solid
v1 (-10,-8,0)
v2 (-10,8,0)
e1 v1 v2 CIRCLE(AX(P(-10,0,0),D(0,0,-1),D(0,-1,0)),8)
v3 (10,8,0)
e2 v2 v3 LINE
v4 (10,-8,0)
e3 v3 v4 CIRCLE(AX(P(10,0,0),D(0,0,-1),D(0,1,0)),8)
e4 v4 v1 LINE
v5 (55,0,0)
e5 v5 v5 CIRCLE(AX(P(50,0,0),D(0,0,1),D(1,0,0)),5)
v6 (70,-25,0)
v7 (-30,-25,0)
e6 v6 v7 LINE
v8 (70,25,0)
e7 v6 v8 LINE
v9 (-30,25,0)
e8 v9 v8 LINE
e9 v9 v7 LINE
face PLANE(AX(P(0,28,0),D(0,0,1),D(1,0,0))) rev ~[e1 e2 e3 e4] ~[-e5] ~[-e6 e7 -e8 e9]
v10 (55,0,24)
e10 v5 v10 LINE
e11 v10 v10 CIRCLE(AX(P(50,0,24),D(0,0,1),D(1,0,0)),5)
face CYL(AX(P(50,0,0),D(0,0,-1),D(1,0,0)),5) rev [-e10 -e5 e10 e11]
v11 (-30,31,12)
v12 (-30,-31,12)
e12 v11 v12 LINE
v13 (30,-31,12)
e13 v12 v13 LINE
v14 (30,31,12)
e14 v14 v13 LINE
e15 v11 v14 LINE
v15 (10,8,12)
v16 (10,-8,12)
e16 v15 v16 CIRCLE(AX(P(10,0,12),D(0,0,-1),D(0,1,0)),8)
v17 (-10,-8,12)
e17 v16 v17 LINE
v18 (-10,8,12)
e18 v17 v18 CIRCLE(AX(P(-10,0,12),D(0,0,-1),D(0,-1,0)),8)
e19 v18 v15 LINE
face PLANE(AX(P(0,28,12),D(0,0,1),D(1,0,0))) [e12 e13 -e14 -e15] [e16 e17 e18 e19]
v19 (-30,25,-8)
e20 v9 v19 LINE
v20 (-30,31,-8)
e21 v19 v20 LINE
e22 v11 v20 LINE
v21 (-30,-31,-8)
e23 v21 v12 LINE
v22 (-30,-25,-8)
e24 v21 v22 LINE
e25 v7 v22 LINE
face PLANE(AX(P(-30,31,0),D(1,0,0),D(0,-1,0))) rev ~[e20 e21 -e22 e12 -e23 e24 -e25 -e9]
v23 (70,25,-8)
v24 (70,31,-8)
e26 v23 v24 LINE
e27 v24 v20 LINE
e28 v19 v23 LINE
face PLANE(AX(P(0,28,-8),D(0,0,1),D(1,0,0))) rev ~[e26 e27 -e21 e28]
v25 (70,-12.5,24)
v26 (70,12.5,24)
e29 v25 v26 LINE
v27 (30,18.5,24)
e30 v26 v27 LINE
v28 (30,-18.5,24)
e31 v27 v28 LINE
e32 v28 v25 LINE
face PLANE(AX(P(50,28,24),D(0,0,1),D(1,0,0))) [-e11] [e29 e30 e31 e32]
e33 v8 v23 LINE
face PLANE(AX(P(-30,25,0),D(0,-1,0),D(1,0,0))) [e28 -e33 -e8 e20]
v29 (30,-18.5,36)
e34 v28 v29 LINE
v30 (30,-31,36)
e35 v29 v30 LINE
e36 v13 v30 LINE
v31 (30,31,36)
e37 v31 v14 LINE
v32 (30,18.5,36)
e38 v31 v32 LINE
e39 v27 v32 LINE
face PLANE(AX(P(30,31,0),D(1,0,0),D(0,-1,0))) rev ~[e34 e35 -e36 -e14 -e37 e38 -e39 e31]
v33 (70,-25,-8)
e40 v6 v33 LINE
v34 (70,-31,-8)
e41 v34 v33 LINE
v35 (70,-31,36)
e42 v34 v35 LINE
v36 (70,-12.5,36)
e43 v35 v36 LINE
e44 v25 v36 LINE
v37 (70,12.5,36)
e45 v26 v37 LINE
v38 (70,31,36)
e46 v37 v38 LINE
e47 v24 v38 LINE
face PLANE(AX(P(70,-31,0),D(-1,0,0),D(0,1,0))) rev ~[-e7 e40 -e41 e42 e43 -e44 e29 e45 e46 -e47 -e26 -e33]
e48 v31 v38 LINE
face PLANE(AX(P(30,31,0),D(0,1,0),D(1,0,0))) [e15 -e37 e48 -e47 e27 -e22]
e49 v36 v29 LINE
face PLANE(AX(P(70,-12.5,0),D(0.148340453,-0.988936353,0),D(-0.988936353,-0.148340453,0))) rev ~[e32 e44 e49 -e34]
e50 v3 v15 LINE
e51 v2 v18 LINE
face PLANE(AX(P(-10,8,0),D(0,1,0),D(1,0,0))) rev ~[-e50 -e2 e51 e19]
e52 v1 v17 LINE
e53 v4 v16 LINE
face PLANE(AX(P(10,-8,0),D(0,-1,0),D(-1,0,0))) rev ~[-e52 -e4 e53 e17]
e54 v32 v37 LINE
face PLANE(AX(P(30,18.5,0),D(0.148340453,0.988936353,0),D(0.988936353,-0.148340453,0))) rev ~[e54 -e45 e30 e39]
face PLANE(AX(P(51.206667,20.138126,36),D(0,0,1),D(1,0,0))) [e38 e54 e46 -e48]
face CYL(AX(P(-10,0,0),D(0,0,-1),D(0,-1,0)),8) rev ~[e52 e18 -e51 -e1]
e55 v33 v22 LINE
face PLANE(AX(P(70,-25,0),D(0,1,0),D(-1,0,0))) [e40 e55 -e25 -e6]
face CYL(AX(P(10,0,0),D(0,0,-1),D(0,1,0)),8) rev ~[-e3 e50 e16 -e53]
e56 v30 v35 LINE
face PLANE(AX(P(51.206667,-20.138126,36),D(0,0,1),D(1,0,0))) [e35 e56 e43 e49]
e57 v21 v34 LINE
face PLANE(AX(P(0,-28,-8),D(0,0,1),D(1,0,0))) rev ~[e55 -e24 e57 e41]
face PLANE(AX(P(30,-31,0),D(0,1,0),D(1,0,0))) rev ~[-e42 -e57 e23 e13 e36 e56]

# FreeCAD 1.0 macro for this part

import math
import FreeCAD as App
import Part
import Sketcher

doc = App.newDocument("Part")
body = doc.addObject("PartDesign::Body", "Body")
body.AllowCompound = True

# Sketch on XY plane
sketch1 = body.newObject("Sketcher::SketchObject", "Sketch")
sketch1.AttachmentSupport = (doc.getObject("XY_Plane"), [""])
sketch1.MapMode = "FlatFace"
sketch1.addGeometry([
    Part.LineSegment(App.Vector(-30, -25, 0), App.Vector(-30, -31, 0)),  # 0
    Part.LineSegment(App.Vector(-30, -31, 0), App.Vector(70, -31, 0)),  # 1
    Part.LineSegment(App.Vector(70, -31, 0), App.Vector(70, -25, 0)),  # 2
    Part.LineSegment(App.Vector(70, -25, 0), App.Vector(-30, -25, 0)),  # 3
    Part.LineSegment(App.Vector(-30, 31, 0), App.Vector(-30, 25, 0)),  # 4
    Part.LineSegment(App.Vector(-30, 25, 0), App.Vector(70, 25, 0)),  # 5
    Part.LineSegment(App.Vector(70, 25, 0), App.Vector(70, 31, 0)),  # 6
    Part.LineSegment(App.Vector(70, 31, 0), App.Vector(-30, 31, 0)),  # 7
], False)
sketch1.addConstraint([
    Sketcher.Constraint("Coincident", 0, 2, 1, 1),
    Sketcher.Constraint("Coincident", 1, 2, 2, 1),
    Sketcher.Constraint("Coincident", 2, 2, 3, 1),
    Sketcher.Constraint("Coincident", 3, 2, 0, 1),
    Sketcher.Constraint("Coincident", 4, 2, 5, 1),
    Sketcher.Constraint("Coincident", 5, 2, 6, 1),
    Sketcher.Constraint("Coincident", 6, 2, 7, 1),
    Sketcher.Constraint("Coincident", 7, 2, 4, 1),
    Sketcher.Constraint("Vertical", 0),
    Sketcher.Constraint("Horizontal", 1),
    Sketcher.Constraint("Vertical", 2),
    Sketcher.Constraint("Horizontal", 3),
    Sketcher.Constraint("Vertical", 4),
    Sketcher.Constraint("Horizontal", 5),
    Sketcher.Constraint("Vertical", 6),
    Sketcher.Constraint("Horizontal", 7),
    Sketcher.Constraint("Symmetric", 3, 2, 4, 2, -1),
    Sketcher.Constraint("Symmetric", 1, 2, 6, 2, -1),
    Sketcher.Constraint("DistanceX", 1, 1, 1, 2, 100.0),
    Sketcher.Constraint("DistanceY", 0, 2, 0, 1, 6.0),
    Sketcher.Constraint("DistanceX", 0, 2, -1, 1, 30.0),
    Sketcher.Constraint("DistanceY", 0, 2, -1, 1, 31.0),
])
pad1 = body.newObject("PartDesign::Pad", "Pad")
pad1.Profile = sketch1
pad1.Length = 8
pad1.Reversed = True

# Sketch on XY plane
sketch2 = body.newObject("Sketcher::SketchObject", "Sketch001")
sketch2.AttachmentSupport = (doc.getObject("XY_Plane"), [""])
sketch2.MapMode = "FlatFace"
sketch2.addGeometry([
    Part.LineSegment(App.Vector(-30, 31, 0), App.Vector(-30, -31, 0)),  # 0
    Part.LineSegment(App.Vector(-30, -31, 0), App.Vector(30, -31, 0)),  # 1
    Part.LineSegment(App.Vector(30, -31, 0), App.Vector(30, 31, 0)),  # 2
    Part.LineSegment(App.Vector(30, 31, 0), App.Vector(-30, 31, 0)),  # 3
    Part.LineSegment(App.Vector(10, -8, 0), App.Vector(-10, -8, 0)),  # 4
    Part.ArcOfCircle(Part.Circle(App.Vector(-10, 0, 0), App.Vector(0, 0, 1), 8), math.radians(90), math.radians(270)),  # 5
    Part.LineSegment(App.Vector(-10, 8, 0), App.Vector(10, 8, 0)),  # 6
    Part.ArcOfCircle(Part.Circle(App.Vector(10, 0, 0), App.Vector(0, 0, 1), 8), math.radians(-90), math.radians(90)),  # 7
], False)
sketch2.addConstraint([
    Sketcher.Constraint("Coincident", 0, 2, 1, 1),
    Sketcher.Constraint("Coincident", 1, 2, 2, 1),
    Sketcher.Constraint("Coincident", 2, 2, 3, 1),
    Sketcher.Constraint("Coincident", 3, 2, 0, 1),
    Sketcher.Constraint("Tangent", 4, 2, 5, 2),
    Sketcher.Constraint("Tangent", 5, 1, 6, 1),
    Sketcher.Constraint("Tangent", 6, 2, 7, 2),
    Sketcher.Constraint("Tangent", 7, 1, 4, 1),
    Sketcher.Constraint("Vertical", 0),
    Sketcher.Constraint("Horizontal", 1),
    Sketcher.Constraint("Vertical", 2),
    Sketcher.Constraint("Horizontal", 3),
    Sketcher.Constraint("Horizontal", 4),
    Sketcher.Constraint("Horizontal", 6),
    Sketcher.Constraint("Symmetric", 5, 3, 7, 3, -1, 1),
    Sketcher.Constraint("Symmetric", 0, 2, 2, 2, -1, 1),
    Sketcher.Constraint("Radius", 5, 8.0),
    Sketcher.Constraint("DistanceX", 1, 1, 1, 2, 60.0),
    Sketcher.Constraint("DistanceX", 4, 2, 4, 1, 20.0),
    Sketcher.Constraint("DistanceY", 0, 2, 0, 1, 62.0),
])
pad2 = body.newObject("PartDesign::Pad", "Pad001")
pad2.Profile = sketch2
pad2.Length = 12

# Sketch on XY plane
sketch3 = body.newObject("Sketcher::SketchObject", "Sketch002")
sketch3.AttachmentSupport = (doc.getObject("XY_Plane"), [""])
sketch3.MapMode = "FlatFace"
sketch3.addGeometry([
    Part.LineSegment(App.Vector(30, 31, 0), App.Vector(30, -31, 0)),  # 0
    Part.LineSegment(App.Vector(30, -31, 0), App.Vector(70, -31, 0)),  # 1
    Part.LineSegment(App.Vector(70, -31, 0), App.Vector(70, 31, 0)),  # 2
    Part.LineSegment(App.Vector(70, 31, 0), App.Vector(30, 31, 0)),  # 3
    Part.Circle(App.Vector(50, 0, 0), App.Vector(0, 0, 1), 5),  # 4
], False)
sketch3.addConstraint([
    Sketcher.Constraint("Coincident", 0, 2, 1, 1),
    Sketcher.Constraint("Coincident", 1, 2, 2, 1),
    Sketcher.Constraint("Coincident", 2, 2, 3, 1),
    Sketcher.Constraint("Coincident", 3, 2, 0, 1),
    Sketcher.Constraint("Vertical", 0),
    Sketcher.Constraint("Horizontal", 1),
    Sketcher.Constraint("Vertical", 2),
    Sketcher.Constraint("Horizontal", 3),
    Sketcher.Constraint("PointOnObject", 4, 3, -1),
    Sketcher.Constraint("Diameter", 4, 10.0),
    Sketcher.Constraint("DistanceX", 1, 1, 1, 2, 40.0),
    Sketcher.Constraint("DistanceY", 0, 2, 0, 1, 62.0),
    Sketcher.Constraint("DistanceX", -1, 1, 4, 3, 50.0),
    Sketcher.Constraint("DistanceX", -1, 1, 0, 2, 30.0),
    Sketcher.Constraint("DistanceY", 0, 2, -1, 1, 31.0),
])
pad3 = body.newObject("PartDesign::Pad", "Pad002")
pad3.Profile = sketch3
pad3.Length = 24

# Sketch on XY plane
sketch4 = body.newObject("Sketcher::SketchObject", "Sketch003")
sketch4.AttachmentSupport = (doc.getObject("XY_Plane"), [""])
sketch4.MapMode = "FlatFace"
sketch4.addGeometry([
    Part.LineSegment(App.Vector(30, -18.5, 0), App.Vector(30, -31, 0)),  # 0
    Part.LineSegment(App.Vector(30, -31, 0), App.Vector(70, -31, 0)),  # 1
    Part.LineSegment(App.Vector(70, -31, 0), App.Vector(70, -12.5, 0)),  # 2
    Part.LineSegment(App.Vector(70, -12.5, 0), App.Vector(30, -18.5, 0)),  # 3
    Part.LineSegment(App.Vector(30, 18.5, 0), App.Vector(70, 12.5, 0)),  # 4
    Part.LineSegment(App.Vector(70, 12.5, 0), App.Vector(70, 31, 0)),  # 5
    Part.LineSegment(App.Vector(70, 31, 0), App.Vector(30, 31, 0)),  # 6
    Part.LineSegment(App.Vector(30, 31, 0), App.Vector(30, 18.5, 0)),  # 7
], False)
sketch4.addConstraint([
    Sketcher.Constraint("Coincident", 0, 2, 1, 1),
    Sketcher.Constraint("Coincident", 1, 2, 2, 1),
    Sketcher.Constraint("Coincident", 2, 2, 3, 1),
    Sketcher.Constraint("Coincident", 3, 2, 0, 1),
    Sketcher.Constraint("Coincident", 4, 2, 5, 1),
    Sketcher.Constraint("Coincident", 5, 2, 6, 1),
    Sketcher.Constraint("Coincident", 6, 2, 7, 1),
    Sketcher.Constraint("Coincident", 7, 2, 4, 1),
    Sketcher.Constraint("Vertical", 0),
    Sketcher.Constraint("Horizontal", 1),
    Sketcher.Constraint("Vertical", 2),
    Sketcher.Constraint("Vertical", 5),
    Sketcher.Constraint("Horizontal", 6),
    Sketcher.Constraint("Vertical", 7),
    Sketcher.Constraint("Symmetric", 2, 2, 4, 2, -1),
    Sketcher.Constraint("Symmetric", 0, 2, 6, 2, -1),
    Sketcher.Constraint("Equal", 0, 7),
    Sketcher.Constraint("DistanceX", 1, 1, 1, 2, 40.0),
    Sketcher.Constraint("DistanceY", 0, 2, 0, 1, 12.5),
    Sketcher.Constraint("DistanceY", 2, 1, 2, 2, 18.5),
    Sketcher.Constraint("DistanceX", -1, 1, 0, 2, 30.0),
    Sketcher.Constraint("DistanceY", 0, 2, -1, 1, 31.0),
])
pad4 = body.newObject("PartDesign::Pad", "Pad003")
pad4.Profile = sketch4
pad4.Length = 36

doc.recompute()
